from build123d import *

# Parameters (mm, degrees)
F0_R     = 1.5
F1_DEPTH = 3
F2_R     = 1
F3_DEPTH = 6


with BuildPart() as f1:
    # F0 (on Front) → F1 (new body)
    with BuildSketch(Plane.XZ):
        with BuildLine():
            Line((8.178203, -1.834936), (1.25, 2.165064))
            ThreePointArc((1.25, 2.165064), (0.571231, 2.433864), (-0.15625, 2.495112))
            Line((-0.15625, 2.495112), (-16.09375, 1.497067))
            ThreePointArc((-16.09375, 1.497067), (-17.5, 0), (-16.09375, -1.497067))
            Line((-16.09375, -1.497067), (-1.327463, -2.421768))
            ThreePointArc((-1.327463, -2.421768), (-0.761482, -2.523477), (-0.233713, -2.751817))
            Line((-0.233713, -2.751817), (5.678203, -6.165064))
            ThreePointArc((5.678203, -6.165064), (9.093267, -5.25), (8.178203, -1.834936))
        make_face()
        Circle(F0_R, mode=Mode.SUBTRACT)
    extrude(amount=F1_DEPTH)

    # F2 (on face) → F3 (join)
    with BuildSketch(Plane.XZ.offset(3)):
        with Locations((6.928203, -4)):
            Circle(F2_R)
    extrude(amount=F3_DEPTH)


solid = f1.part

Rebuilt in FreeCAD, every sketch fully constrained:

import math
import FreeCAD as App
import Part
import Sketcher
from FreeCAD import Vector
Q = App.Units.Quantity

doc = App.newDocument("Part")
params = doc.addObject("Spreadsheet::Sheet", "Params")
for row, (alias, value) in enumerate([
    ("sketch1_diameter", "3 mm"),
    ("sketch1_radius", "2.5 mm"),
    ("sketch1_length", "8 mm"),
    ("pad1_length", "3 mm"),
    ("sketch2_diameter", "2 mm"),
    ("pad2_length", "6 mm"),
], start=1):
    params.set(f"A{row}", alias)
    params.set(f"B{row}", "=" + value)
    params.setAlias(f"B{row}", alias)

body = doc.addObject("PartDesign::Body", "Body")

sketch1 = doc.addObject("Sketcher::SketchObject", "Sketch")
body.addObject(sketch1)
sketch1.AttachmentSupport = (doc.XZ_Plane, [""])
sketch1.MapMode = "FlatFace"
sketch1.addGeometry([
    Part.LineSegment(Vector(8.2, -1.8, 0), Vector(1.2, 2.2, 0)),
    Part.ArcOfCircle(Part.Circle(Vector(0, 0, 0), Vector(0, 0, 1), 2.5), math.radians(60), math.radians(94)),
    Part.LineSegment(Vector(-0.2, 2.5, 0), Vector(-16.1, 1.5, 0)),
    Part.ArcOfCircle(Part.Circle(Vector(-16, 0, 0), Vector(0, 0, 1), 1.5), math.radians(94), math.radians(266)),
    Part.LineSegment(Vector(-16.1, -1.5, 0), Vector(-1.3, -2.4, 0)),
    Part.ArcOfCircle(Part.Circle(Vector(-1.5, -4.9, 0), Vector(0, 0, 1), 2.5), math.radians(60), math.radians(86)),
    Part.LineSegment(Vector(-0.2, -2.8, 0), Vector(5.7, -6.2, 0)),
    Part.ArcOfCircle(Part.Circle(Vector(6.9, -4, 0), Vector(0, 0, 1), 2.5), math.radians(-120), math.radians(60)),
    Part.Circle(Vector(0, 0, 0), Vector(0, 0, 1), 1.5),
], False)
sketch1.addConstraint([
    Sketcher.Constraint("Tangent", 0, 2, 1, 1),
    Sketcher.Constraint("Tangent", 1, 2, 2, 1),
    Sketcher.Constraint("Tangent", 2, 2, 3, 1),
    Sketcher.Constraint("Tangent", 3, 2, 4, 1),
    Sketcher.Constraint("Tangent", 4, 2, 5, 2),
    Sketcher.Constraint("Tangent", 5, 1, 6, 1),
    Sketcher.Constraint("Tangent", 6, 2, 7, 1),
    Sketcher.Constraint("Tangent", 7, 2, 0, 1),
    Sketcher.Constraint("Coincident", 1, 3, -1, 1),
    Sketcher.Constraint("Coincident", 8, 3, -1, 1),
    Sketcher.Constraint("Equal", 3, 8),
    Sketcher.Constraint("Symmetric", 2, 2, 3, 2, -1),
    Sketcher.Constraint("Parallel", 0, 6),
    Sketcher.Constraint("Diameter", 8, 3.0),
    Sketcher.Constraint("Radius", 7, 2.5),
    Sketcher.Constraint("Angle", 0, Q("149.999999 deg")),
    Sketcher.Constraint("Distance", 0, 8.0),
    Sketcher.Constraint("DistanceX", 3, 3, -1, 1, 16.0),
    Sketcher.Constraint("DistanceY", 7, 3, -1, 1, 4.0),
    Sketcher.Constraint("Radius", 5, 2.500017),
])
sketch1.setExpression("Constraints[13]", "Params.sketch1_diameter")
sketch1.setExpression("Constraints[14]", "Params.sketch1_radius")
sketch1.setExpression("Constraints[16]", "Params.sketch1_length")
pad1 = doc.addObject("PartDesign::Pad", "Pad")
body.addObject(pad1)
pad1.Profile = sketch1
pad1.setExpression("Length", "Params.pad1_length")

sketch2 = doc.addObject("Sketcher::SketchObject", "Sketch001")
body.addObject(sketch2)
sketch2.AttachmentSupport = (doc.XZ_Plane, [""])
sketch2.MapMode = "FlatFace"
sketch2.AttachmentOffset = App.Placement(Vector(0, 0, 3), App.Rotation())
sketch2.addGeometry(Part.Circle(Vector(6.9, -4, 0), Vector(0, 0, 1), 1), False)
sketch2.addConstraint([
    Sketcher.Constraint("Diameter", 0, 2.0),
    Sketcher.Constraint("DistanceY", 0, 3, -1, 1, 4.0),
    Sketcher.Constraint("DistanceX", -1, 1, 0, 3, 6.928203),
])
sketch2.setExpression("Constraints[0]", "Params.sketch2_diameter")
pad2 = doc.addObject("PartDesign::Pad", "Pad001")
body.addObject(pad2)
pad2.Profile = sketch2
pad2.setExpression("Length", "Params.pad2_length")

doc.recompute()
